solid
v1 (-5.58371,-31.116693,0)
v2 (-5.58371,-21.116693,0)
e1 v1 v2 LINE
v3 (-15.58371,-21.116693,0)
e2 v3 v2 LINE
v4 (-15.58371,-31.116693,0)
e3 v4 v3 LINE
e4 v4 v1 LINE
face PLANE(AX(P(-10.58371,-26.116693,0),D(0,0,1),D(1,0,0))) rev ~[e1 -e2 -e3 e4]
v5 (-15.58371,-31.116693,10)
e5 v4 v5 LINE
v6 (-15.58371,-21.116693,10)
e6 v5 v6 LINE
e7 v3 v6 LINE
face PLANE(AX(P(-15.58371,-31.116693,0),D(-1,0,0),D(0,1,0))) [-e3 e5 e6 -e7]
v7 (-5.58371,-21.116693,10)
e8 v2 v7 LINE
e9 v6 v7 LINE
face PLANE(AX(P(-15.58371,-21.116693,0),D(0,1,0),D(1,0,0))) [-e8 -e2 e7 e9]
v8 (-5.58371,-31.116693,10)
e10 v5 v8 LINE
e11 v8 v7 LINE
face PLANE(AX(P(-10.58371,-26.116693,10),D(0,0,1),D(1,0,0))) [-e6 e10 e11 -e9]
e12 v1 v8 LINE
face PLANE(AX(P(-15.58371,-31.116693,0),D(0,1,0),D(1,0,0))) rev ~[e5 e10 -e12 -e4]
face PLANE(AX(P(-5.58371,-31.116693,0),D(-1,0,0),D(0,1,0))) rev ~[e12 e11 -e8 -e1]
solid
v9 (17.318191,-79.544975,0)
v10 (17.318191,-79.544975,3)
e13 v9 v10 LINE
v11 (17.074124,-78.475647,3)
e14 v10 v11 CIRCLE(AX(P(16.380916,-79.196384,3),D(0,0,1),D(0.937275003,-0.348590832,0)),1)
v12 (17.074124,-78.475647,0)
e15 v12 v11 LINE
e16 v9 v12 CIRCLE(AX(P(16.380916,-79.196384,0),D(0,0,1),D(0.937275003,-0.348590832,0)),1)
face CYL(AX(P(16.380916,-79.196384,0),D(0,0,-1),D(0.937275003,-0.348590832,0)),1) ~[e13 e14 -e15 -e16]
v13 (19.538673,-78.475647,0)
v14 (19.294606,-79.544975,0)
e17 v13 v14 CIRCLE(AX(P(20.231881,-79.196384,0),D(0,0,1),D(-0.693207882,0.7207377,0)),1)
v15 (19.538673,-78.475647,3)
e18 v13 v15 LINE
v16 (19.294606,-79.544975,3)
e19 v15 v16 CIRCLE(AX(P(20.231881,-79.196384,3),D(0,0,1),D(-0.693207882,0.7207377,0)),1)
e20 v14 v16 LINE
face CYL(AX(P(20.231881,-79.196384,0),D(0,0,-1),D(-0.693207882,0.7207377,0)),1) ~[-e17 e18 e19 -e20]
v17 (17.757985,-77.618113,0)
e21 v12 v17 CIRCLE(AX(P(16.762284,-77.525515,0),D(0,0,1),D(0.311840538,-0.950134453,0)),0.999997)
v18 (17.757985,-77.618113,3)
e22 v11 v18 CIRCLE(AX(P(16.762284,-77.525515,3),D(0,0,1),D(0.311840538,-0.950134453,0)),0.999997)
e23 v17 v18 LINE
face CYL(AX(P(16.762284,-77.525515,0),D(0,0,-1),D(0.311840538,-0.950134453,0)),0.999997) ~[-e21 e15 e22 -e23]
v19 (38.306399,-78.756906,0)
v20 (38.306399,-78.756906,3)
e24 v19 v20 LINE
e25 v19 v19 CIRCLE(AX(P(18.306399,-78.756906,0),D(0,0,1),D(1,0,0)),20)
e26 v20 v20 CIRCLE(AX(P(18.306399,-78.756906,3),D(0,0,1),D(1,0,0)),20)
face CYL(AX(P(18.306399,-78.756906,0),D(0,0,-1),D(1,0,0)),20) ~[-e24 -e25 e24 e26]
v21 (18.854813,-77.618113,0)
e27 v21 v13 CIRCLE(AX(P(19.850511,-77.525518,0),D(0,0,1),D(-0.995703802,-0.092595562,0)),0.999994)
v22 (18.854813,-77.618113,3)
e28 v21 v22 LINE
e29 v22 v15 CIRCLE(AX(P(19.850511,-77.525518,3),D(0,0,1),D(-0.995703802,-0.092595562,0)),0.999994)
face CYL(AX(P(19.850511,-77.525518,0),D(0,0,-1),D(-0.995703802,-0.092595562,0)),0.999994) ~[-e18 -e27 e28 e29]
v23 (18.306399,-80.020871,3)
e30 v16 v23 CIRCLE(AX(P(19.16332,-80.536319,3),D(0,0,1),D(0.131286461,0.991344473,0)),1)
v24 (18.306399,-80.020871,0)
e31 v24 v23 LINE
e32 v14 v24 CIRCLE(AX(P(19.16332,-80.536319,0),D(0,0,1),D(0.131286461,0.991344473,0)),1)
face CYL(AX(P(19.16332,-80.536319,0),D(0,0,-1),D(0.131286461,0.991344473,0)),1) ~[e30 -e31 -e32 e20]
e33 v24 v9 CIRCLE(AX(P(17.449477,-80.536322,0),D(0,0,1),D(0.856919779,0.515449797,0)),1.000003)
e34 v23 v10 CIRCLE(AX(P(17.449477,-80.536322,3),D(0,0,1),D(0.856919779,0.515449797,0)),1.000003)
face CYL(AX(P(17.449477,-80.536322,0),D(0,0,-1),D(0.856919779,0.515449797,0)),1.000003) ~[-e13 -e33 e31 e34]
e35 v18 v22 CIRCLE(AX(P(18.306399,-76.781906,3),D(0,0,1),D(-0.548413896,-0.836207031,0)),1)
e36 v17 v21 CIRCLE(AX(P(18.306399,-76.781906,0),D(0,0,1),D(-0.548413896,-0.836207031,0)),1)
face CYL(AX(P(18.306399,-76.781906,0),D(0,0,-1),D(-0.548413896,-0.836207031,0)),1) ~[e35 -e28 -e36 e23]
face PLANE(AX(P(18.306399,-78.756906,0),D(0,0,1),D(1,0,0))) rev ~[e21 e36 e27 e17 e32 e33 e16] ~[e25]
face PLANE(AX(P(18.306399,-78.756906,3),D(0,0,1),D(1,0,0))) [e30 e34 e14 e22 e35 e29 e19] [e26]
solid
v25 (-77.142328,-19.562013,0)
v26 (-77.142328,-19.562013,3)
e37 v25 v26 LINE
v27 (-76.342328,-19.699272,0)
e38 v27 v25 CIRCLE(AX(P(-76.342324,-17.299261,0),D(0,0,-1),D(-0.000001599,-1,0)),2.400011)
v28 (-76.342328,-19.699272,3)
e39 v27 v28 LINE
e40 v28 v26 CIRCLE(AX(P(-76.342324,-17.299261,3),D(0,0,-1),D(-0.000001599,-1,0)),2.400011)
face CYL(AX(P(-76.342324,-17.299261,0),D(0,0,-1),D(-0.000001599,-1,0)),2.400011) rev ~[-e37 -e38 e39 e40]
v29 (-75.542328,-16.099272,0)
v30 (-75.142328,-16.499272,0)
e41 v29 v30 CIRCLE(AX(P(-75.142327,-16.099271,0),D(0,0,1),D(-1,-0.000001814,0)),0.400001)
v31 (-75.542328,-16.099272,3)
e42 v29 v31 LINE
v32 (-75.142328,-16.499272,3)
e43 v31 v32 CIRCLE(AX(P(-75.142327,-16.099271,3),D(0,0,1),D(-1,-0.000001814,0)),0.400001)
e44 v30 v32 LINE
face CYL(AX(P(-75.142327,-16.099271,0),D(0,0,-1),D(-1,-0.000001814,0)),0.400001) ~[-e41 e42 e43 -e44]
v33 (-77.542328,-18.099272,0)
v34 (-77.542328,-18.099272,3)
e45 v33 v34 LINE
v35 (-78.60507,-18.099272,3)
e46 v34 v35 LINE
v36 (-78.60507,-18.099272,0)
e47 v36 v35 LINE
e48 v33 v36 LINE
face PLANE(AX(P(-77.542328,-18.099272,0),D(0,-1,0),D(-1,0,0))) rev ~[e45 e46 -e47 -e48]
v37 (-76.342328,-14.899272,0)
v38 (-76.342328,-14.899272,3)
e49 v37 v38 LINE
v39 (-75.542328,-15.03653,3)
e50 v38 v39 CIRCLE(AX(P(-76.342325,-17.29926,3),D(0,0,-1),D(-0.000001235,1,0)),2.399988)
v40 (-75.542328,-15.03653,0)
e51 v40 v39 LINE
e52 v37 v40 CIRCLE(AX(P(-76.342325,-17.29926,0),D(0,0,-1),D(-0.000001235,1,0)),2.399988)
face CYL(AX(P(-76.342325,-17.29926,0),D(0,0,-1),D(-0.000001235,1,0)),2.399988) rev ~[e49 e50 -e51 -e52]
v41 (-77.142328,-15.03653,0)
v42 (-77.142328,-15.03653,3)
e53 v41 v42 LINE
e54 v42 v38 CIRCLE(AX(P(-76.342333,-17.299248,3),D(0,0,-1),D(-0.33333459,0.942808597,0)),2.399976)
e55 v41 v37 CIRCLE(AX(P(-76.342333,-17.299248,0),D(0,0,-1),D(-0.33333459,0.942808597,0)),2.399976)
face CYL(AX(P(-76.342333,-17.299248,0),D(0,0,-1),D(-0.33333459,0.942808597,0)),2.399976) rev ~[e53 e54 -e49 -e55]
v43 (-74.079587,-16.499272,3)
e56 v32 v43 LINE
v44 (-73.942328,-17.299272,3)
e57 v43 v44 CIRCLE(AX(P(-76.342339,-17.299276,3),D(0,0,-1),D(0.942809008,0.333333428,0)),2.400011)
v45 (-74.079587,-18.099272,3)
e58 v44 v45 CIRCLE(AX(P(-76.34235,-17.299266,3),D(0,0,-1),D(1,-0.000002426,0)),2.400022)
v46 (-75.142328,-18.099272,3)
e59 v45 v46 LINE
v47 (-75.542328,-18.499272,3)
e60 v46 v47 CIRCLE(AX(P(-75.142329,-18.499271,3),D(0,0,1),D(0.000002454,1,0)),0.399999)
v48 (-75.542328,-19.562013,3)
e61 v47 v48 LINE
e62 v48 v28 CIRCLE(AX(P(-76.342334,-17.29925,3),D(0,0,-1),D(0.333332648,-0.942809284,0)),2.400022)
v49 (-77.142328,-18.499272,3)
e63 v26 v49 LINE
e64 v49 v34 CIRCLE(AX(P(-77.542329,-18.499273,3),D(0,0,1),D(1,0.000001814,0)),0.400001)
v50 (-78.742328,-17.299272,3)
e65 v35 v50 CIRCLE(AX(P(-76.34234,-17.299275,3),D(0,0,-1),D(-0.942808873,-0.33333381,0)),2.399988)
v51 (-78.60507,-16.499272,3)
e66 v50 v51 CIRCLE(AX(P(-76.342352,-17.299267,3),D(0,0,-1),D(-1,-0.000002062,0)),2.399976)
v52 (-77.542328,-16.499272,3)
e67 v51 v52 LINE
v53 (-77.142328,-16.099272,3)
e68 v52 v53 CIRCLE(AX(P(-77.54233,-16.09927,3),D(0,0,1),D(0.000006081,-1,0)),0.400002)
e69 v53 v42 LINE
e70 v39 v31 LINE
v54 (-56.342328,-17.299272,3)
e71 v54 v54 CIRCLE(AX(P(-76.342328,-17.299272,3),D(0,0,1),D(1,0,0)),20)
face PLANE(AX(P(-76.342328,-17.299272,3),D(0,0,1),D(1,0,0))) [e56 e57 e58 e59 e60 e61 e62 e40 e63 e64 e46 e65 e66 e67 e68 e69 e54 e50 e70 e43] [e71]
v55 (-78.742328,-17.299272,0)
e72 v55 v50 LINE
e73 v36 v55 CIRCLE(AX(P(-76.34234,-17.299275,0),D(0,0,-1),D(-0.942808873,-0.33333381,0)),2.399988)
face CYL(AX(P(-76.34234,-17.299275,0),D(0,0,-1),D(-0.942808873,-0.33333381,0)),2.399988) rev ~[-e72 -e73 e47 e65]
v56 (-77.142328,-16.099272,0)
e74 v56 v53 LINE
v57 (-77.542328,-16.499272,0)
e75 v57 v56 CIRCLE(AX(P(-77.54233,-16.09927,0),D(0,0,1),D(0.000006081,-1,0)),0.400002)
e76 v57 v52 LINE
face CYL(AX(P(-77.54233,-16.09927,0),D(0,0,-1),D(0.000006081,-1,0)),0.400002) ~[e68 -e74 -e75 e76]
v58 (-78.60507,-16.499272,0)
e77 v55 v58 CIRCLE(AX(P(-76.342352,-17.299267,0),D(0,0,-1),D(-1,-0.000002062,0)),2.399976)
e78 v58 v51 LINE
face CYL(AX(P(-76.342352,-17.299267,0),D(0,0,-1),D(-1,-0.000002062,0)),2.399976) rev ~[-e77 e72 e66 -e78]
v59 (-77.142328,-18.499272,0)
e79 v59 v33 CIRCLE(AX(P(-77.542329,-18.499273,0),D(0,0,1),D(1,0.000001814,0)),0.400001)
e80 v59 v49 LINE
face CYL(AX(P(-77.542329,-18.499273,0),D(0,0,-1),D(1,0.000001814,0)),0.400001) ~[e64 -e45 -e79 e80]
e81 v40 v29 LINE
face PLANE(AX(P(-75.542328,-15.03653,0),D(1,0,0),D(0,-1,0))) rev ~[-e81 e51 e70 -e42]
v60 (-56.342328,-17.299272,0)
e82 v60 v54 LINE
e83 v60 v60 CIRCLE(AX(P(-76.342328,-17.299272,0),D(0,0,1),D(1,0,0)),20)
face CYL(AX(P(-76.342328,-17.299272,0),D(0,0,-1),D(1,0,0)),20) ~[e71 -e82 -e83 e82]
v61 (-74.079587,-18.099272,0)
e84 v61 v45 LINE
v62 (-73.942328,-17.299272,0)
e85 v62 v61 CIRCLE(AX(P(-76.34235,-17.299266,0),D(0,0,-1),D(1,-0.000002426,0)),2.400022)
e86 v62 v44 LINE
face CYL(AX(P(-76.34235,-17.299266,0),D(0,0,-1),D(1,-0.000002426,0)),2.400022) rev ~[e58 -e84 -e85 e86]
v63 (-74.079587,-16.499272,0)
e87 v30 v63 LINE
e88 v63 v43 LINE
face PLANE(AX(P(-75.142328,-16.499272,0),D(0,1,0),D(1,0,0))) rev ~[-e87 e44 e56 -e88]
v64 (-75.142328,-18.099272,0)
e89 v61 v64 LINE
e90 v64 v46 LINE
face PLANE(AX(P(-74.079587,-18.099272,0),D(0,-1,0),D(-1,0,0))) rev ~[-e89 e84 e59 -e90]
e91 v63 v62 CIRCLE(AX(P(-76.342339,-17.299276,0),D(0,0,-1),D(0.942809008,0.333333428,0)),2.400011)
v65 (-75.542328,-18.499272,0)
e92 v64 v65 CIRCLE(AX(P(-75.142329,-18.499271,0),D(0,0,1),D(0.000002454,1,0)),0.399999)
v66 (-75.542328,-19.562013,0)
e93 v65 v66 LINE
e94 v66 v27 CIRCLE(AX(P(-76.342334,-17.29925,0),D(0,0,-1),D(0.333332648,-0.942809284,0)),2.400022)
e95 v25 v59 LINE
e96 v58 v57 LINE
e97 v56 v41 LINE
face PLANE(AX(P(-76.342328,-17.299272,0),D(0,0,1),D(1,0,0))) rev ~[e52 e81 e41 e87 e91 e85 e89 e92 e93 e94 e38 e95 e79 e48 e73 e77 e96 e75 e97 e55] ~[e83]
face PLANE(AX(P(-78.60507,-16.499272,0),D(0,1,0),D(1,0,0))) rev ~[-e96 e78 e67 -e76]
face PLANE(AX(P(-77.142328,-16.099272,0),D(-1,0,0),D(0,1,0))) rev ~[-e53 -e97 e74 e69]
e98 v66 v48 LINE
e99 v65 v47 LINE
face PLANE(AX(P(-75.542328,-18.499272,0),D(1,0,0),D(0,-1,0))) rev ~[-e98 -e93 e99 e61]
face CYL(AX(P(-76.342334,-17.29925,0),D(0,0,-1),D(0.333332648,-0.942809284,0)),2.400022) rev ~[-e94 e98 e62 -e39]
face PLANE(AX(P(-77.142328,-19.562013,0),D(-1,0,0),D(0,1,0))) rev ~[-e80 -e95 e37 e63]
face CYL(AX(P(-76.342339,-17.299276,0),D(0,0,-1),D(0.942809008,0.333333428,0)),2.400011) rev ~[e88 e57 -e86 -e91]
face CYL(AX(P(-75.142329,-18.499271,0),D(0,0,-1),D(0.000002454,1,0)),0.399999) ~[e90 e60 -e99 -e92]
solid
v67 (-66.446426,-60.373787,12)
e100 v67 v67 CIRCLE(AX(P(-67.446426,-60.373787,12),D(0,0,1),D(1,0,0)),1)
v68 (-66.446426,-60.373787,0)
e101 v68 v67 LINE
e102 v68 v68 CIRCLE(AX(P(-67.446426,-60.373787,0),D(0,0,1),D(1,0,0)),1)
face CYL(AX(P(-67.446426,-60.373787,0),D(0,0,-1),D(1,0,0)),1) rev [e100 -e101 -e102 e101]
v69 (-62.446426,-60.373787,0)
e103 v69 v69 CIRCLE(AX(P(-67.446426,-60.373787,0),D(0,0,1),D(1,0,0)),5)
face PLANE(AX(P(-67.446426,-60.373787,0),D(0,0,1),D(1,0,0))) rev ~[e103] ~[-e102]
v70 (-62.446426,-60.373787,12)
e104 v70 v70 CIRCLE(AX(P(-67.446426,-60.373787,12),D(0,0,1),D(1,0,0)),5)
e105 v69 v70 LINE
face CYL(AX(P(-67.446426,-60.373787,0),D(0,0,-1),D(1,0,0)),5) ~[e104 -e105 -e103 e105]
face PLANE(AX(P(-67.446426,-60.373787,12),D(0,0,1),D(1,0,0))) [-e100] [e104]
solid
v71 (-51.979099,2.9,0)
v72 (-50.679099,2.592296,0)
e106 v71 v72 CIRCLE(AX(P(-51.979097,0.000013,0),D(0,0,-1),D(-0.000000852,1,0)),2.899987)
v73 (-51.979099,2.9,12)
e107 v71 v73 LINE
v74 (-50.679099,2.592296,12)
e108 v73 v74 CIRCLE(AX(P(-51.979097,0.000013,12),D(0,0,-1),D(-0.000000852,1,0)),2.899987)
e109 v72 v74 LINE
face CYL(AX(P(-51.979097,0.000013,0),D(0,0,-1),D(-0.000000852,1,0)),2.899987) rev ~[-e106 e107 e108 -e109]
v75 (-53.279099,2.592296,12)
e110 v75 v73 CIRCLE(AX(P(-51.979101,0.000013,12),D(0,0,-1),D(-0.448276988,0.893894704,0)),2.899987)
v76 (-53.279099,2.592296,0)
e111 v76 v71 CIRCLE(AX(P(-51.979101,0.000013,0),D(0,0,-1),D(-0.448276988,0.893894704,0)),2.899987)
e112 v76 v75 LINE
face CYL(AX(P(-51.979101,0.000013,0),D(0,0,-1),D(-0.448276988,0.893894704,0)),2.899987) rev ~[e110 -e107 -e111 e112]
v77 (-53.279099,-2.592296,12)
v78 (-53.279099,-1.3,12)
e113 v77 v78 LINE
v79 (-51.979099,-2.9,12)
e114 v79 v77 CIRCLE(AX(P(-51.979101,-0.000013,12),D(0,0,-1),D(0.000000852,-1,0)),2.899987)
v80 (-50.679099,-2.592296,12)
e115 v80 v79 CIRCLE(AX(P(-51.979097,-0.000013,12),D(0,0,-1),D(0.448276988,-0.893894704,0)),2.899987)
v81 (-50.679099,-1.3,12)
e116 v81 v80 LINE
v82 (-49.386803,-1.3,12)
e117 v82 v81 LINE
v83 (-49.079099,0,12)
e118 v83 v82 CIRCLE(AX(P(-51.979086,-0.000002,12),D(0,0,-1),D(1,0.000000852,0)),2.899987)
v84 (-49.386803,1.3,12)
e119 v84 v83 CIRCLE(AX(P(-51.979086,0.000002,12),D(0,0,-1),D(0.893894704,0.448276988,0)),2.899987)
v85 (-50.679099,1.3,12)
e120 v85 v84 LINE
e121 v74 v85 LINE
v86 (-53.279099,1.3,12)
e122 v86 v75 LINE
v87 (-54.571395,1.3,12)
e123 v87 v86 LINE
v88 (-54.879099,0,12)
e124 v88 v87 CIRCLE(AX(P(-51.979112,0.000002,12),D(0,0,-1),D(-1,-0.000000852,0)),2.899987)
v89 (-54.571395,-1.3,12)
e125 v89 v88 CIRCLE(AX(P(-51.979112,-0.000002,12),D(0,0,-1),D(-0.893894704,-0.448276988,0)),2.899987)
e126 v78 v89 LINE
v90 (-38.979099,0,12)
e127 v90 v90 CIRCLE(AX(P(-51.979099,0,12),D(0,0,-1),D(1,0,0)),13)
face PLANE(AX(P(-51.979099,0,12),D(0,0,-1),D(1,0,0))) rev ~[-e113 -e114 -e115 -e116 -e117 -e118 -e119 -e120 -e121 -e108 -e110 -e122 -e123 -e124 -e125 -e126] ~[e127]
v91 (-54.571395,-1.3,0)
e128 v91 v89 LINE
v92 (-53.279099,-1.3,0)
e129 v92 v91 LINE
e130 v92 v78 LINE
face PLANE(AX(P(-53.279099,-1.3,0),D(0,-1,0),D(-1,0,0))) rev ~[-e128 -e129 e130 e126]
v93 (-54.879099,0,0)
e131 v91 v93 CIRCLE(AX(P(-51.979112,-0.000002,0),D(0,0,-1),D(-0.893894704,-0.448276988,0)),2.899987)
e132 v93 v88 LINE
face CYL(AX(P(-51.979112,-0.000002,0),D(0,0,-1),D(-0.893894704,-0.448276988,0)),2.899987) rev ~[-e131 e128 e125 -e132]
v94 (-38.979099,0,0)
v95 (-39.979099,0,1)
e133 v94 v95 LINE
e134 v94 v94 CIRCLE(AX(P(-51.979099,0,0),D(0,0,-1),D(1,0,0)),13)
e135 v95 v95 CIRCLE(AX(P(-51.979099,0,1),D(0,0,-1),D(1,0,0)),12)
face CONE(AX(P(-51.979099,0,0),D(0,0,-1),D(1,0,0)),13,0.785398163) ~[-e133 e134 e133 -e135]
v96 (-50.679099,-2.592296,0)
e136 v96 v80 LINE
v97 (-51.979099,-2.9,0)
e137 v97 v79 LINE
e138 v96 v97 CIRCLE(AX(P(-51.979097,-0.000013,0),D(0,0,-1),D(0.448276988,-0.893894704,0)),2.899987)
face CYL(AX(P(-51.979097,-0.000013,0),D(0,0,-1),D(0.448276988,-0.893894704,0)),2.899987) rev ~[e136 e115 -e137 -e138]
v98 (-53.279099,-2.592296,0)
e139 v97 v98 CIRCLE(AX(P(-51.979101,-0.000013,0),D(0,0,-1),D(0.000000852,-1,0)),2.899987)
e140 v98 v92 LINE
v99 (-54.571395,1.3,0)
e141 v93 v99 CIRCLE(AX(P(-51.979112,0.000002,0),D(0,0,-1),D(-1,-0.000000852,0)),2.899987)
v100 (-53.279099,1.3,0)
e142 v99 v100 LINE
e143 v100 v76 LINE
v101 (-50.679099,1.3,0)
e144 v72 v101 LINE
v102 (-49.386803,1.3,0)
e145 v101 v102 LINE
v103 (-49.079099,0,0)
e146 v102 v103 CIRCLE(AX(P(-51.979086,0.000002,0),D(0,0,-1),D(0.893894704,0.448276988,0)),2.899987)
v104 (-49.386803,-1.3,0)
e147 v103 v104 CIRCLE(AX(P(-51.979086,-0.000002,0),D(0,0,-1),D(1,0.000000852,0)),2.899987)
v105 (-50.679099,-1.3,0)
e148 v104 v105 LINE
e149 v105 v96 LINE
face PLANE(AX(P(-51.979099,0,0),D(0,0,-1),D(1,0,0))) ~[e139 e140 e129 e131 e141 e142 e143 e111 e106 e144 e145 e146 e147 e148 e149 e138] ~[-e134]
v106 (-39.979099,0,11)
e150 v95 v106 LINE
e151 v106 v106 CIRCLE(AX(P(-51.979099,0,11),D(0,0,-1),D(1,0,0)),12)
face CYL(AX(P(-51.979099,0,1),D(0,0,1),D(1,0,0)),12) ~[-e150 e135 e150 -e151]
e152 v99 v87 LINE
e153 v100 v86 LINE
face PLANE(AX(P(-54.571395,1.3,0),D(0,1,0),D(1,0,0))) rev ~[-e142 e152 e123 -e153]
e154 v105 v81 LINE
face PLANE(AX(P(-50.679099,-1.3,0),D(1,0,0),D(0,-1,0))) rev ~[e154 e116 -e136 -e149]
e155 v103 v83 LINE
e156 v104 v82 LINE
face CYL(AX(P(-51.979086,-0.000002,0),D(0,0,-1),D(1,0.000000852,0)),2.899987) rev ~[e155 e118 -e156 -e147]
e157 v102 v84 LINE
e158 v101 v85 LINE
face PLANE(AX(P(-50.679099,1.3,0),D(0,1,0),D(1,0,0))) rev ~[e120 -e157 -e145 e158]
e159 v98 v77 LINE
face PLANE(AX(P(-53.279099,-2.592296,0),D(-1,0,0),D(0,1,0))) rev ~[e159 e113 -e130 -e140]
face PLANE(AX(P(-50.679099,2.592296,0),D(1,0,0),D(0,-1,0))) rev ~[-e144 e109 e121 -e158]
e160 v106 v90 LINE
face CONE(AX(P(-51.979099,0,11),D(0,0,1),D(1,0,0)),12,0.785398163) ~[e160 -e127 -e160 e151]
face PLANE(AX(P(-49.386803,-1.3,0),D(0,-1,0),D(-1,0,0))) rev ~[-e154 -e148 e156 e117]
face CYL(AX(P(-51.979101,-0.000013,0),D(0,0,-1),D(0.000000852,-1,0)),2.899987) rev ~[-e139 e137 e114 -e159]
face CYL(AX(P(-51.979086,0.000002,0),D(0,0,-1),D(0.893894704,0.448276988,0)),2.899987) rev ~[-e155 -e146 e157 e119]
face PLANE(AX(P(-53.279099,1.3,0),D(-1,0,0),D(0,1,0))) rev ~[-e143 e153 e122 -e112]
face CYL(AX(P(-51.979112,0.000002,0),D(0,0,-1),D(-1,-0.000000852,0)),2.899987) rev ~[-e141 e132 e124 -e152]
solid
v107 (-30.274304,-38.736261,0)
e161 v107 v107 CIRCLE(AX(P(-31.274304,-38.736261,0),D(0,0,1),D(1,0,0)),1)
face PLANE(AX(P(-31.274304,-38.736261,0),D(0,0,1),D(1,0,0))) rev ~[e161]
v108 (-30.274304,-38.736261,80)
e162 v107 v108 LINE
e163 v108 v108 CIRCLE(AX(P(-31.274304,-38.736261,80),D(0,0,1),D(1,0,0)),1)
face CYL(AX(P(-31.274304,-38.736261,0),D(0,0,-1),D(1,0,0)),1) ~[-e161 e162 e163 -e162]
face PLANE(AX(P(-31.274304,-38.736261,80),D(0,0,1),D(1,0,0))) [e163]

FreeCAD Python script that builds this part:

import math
import FreeCAD as App
import Part
import Sketcher


def faces_at(feature, points):
    """Names of the faces that lie closest to the given points."""
    faces = feature.Shape.Faces
    near = lambda p: min(range(len(faces)), key=lambda i: faces[i].distToShape(Part.Vertex(*p))[0])
    return sorted({f"Face{near(p) + 1}" for p in points})

doc = App.newDocument("Part")
params = doc.addObject("Spreadsheet::Sheet", "Params")
for row, (alias, value) in enumerate([
    ("sketch1_diameter", "40 mm"),
    ("sketch1_radius", "1 mm"),
    ("pad1_length", "3 mm"),
    ("sketch2_diameter", "2 mm"),
    ("pad2_length", "80 mm"),
    ("pad3_length", "308 mm"),
    ("thickness_wall", "2.5 mm"),
    ("sketch4_diameter", "10 mm"),
    ("sketch4_diameter2", "2 mm"),
    ("pad4_length", "12 mm"),
    ("sketch5_width", "12 mm"),
    ("sketch5_height", "10 mm"),
    ("revolution_angle", "360 deg"),
    ("sketch7_diameter", "40 mm"),
    ("sketch7_radius", "0.400001 mm"),
    ("pad5_length", "3 mm"),
    ("sketch8_width", "10 mm"),
    ("pad6_length", "10 mm"),
], start=1):
    params.set(f"A{row}", alias)
    params.set(f"B{row}", "=" + value)
    params.setAlias(f"B{row}", alias)

body = doc.addObject("PartDesign::Body", "Body")

# Sketch on XY plane
sketch1 = body.newObject("Sketcher::SketchObject", "Sketch")
sketch1.AttachmentSupport = (doc.getObject("XY_Plane"), [""])
sketch1.MapMode = "FlatFace"
sketch1.addGeometry([
    Part.Circle(App.Vector(18.306399, -78.756906, 0), App.Vector(0, 0, 1), 20),  # 0
    Part.ArcOfCircle(Part.Circle(App.Vector(16.380916, -79.196384, 0), App.Vector(0, 0, 1), 1), math.radians(-20.401148), math.radians(46.11542)),  # 1
    Part.ArcOfCircle(Part.Circle(App.Vector(16.762284, -77.525515, 0), App.Vector(0, 0, 1), 0.999997), math.radians(-71.829815), math.radians(-5.313079)),  # 2
    Part.ArcOfCircle(Part.Circle(App.Vector(18.306399, -76.781906, 0), App.Vector(0, 0, 1), 1), math.radians(-123.258267), math.radians(-56.741733)),  # 3
    Part.ArcOfCircle(Part.Circle(App.Vector(19.850511, -77.525518, 0), App.Vector(0, 0, 1), 0.999994), math.radians(-174.687054), math.radians(-108.170133)),  # 4
    Part.ArcOfCircle(Part.Circle(App.Vector(20.231881, -79.196384, 0), App.Vector(0, 0, 1), 1), math.radians(133.88458), math.radians(200.401148)),  # 5
    Part.ArcOfCircle(Part.Circle(App.Vector(19.16332, -80.536319, 0), App.Vector(0, 0, 1), 1), math.radians(82.456062), math.radians(148.972565)),  # 6
    Part.ArcOfCircle(Part.Circle(App.Vector(17.449477, -80.536322, 0), App.Vector(0, 0, 1), 1.000003), math.radians(31.027525), math.radians(97.543894)),  # 7
], False)
sketch1.addConstraint([
    Sketcher.Constraint("Coincident", 1, 2, 2, 1),
    Sketcher.Constraint("Coincident", 2, 2, 3, 1),
    Sketcher.Constraint("Coincident", 3, 2, 4, 1),
    Sketcher.Constraint("Coincident", 4, 2, 5, 1),
    Sketcher.Constraint("Coincident", 5, 2, 6, 1),
    Sketcher.Constraint("Coincident", 6, 2, 7, 1),
    Sketcher.Constraint("Coincident", 7, 2, 1, 1),
    Sketcher.Constraint("Equal", 1, 3),
    Sketcher.Constraint("Equal", 3, 5),
    Sketcher.Constraint("Equal", 5, 6),
    Sketcher.Constraint("Horizontal", 1, 3, 5, 3),
    Sketcher.Constraint("Horizontal", 2, 2, 3, 2),
    Sketcher.Constraint("Horizontal", 1, 2, 4, 2),
    Sketcher.Constraint("Horizontal", 5, 2, 7, 2),
    Sketcher.Constraint("Vertical", 0, 3, 3, 3),
    Sketcher.Constraint("Vertical", 3, 3, 6, 2),
    Sketcher.Constraint("Diameter", 0, 40.0),
    Sketcher.Constraint("Radius", 1, 1.0),
    Sketcher.Constraint("Radius", 2, 0.999997),
    Sketcher.Constraint("Radius", 4, 0.999994),
    Sketcher.Constraint("Radius", 7, 1.000003),
    Sketcher.Constraint("DistanceY", 0, 3, 3, 3, 1.975),
    Sketcher.Constraint("DistanceX", -1, 1, 0, 3, 18.306399),
    Sketcher.Constraint("DistanceY", 6, 3, 4, 3, 3.010801),
    Sketcher.Constraint("DistanceX", 2, 3, 2, 2, 0.995701),
    Sketcher.Constraint("DistanceX", -1, 1, 4, 3, 19.850511),
    Sketcher.Constraint("DistanceX", -1, 1, 5, 3, 20.231881),
    Sketcher.Constraint("DistanceX", -1, 1, 6, 3, 19.16332),
    Sketcher.Constraint("DistanceY", 6, 3, -1, 1, 80.536319),
    Sketcher.Constraint("DistanceX", -1, 1, 7, 2, 17.318191),
    Sketcher.Constraint("DistanceY", 1, 3, 0, 3, 0.439478),
])
sketch1.setExpression("Constraints[16]", "Params.sketch1_diameter")
sketch1.setExpression("Constraints[17]", "Params.sketch1_radius")
pad1 = body.newObject("PartDesign::Pad", "Pad")
pad1.Profile = sketch1
pad1.setExpression("Length", "Params.pad1_length")
body2 = doc.addObject("PartDesign::Body", "Body001")

# Sketch on XY plane
sketch2 = body2.newObject("Sketcher::SketchObject", "Sketch001")
sketch2.AttachmentSupport = (doc.getObject("XY_Plane001"), [""])
sketch2.MapMode = "FlatFace"
sketch2.addGeometry(Part.Circle(App.Vector(-31.274304, -38.736261, 0), App.Vector(0, 0, 1), 1), False)
sketch2.addConstraint([
    Sketcher.Constraint("Diameter", 0, 2.0),
    Sketcher.Constraint("DistanceY", 0, 3, -1, 1, 38.736261),
    Sketcher.Constraint("DistanceX", 0, 3, -1, 1, 31.274304),
])
sketch2.setExpression("Constraints[0]", "Params.sketch2_diameter")
pad2 = body2.newObject("PartDesign::Pad", "Pad001")
pad2.Profile = sketch2
pad2.setExpression("Length", "Params.pad2_length")
body3 = doc.addObject("PartDesign::Body", "Body002")

# Sketch on XY plane
sketch3 = body3.newObject("Sketcher::SketchObject", "Sketch002")
sketch3.AttachmentSupport = (doc.getObject("XY_Plane002"), [""])
sketch3.MapMode = "FlatFace"
sketch3.addGeometry([
    Part.LineSegment(App.Vector(114.501424, 146.946729, 0), App.Vector(114.501424, -144.927591, 0)),
    Part.LineSegment(App.Vector(114.501424, -144.927591, 0), App.Vector(301.108478, -144.927591, 0)),
    Part.LineSegment(App.Vector(301.108478, -144.927591, 0), App.Vector(301.108478, 146.946729, 0)),
    Part.LineSegment(App.Vector(301.108478, 146.946729, 0), App.Vector(114.501424, 146.946729, 0)),
], False)
sketch3.addConstraint([
    Sketcher.Constraint("Coincident", 0, 2, 1, 1),
    Sketcher.Constraint("Coincident", 1, 2, 2, 1),
    Sketcher.Constraint("Coincident", 2, 2, 3, 1),
    Sketcher.Constraint("Coincident", 3, 2, 0, 1),
    Sketcher.Constraint("Vertical", 0),
    Sketcher.Constraint("Horizontal", 1),
    Sketcher.Constraint("Vertical", 2),
    Sketcher.Constraint("Horizontal", 3),
    Sketcher.Constraint("DistanceY", 0, 2, 0, 1, 291.874319),
    Sketcher.Constraint("DistanceX", 1, 1, 1, 2, 186.607055),
    Sketcher.Constraint("DistanceY", 0, 2, -1, 1, 144.927591),
    Sketcher.Constraint("DistanceX", -1, 1, 1, 2, 301.108478),
])
pad3 = body3.newObject("PartDesign::Pad", "Pad002")
pad3.Profile = sketch3
pad3.setExpression("Length", "Params.pad3_length")
doc.recompute()

thickness = body3.newObject("PartDesign::Thickness", "Thickness")
thickness.Base = (pad3, faces_at(pad3, [(207.805, 1.01, 308), (207.805, 1.01, 0)]))
thickness.setExpression("Value", "Params.thickness_wall")
thickness.Reversed = True
thickness.Join = "Arc"
body4 = doc.addObject("PartDesign::Body", "Body003")

# Sketch on XY plane
sketch4 = body4.newObject("Sketcher::SketchObject", "Sketch003")
sketch4.AttachmentSupport = (doc.getObject("XY_Plane003"), [""])
sketch4.MapMode = "FlatFace"
sketch4.addGeometry([
    Part.Circle(App.Vector(-67.446426, -60.373787, 0), App.Vector(0, 0, 1), 5),
    Part.Circle(App.Vector(-67.446426, -60.373787, 0), App.Vector(0, 0, 1), 1),
], False)
sketch4.addConstraint([
    Sketcher.Constraint("Coincident", 1, 3, 0, 3),
    Sketcher.Constraint("Diameter", 0, 10.0),
    Sketcher.Constraint("Diameter", 1, 2.0),
    Sketcher.Constraint("DistanceX", 0, 3, -1, 1, 67.446426),
    Sketcher.Constraint("DistanceY", 0, 3, -1, 1, 60.373787),
])
sketch4.setExpression("Constraints[1]", "Params.sketch4_diameter")
sketch4.setExpression("Constraints[2]", "Params.sketch4_diameter2")
pad4 = body4.newObject("PartDesign::Pad", "Pad003")
pad4.Profile = sketch4
pad4.setExpression("Length", "Params.pad4_length")
body5 = doc.addObject("PartDesign::Body", "Body004")

# Sketch on XZ plane
sketch5 = body5.newObject("Sketcher::SketchObject", "Sketch004")
sketch5.AttachmentSupport = (doc.getObject("XZ_Plane004"), [""])
sketch5.MapMode = "FlatFace"
sketch5.addGeometry([
    Part.LineSegment(App.Vector(-38.979099, 0, 0), App.Vector(-39.979099, 1, 0)),  # 0
    Part.LineSegment(App.Vector(-39.979099, 1, 0), App.Vector(-39.979099, 11, 0)),  # 1
    Part.LineSegment(App.Vector(-39.979099, 11, 0), App.Vector(-38.979099, 12, 0)),  # 2
    Part.LineSegment(App.Vector(-38.979099, 12, 0), App.Vector(-50.979099, 12, 0)),  # 3
    Part.LineSegment(App.Vector(-50.979099, 12, 0), App.Vector(-50.979099, 0, 0)),  # 4
    Part.LineSegment(App.Vector(-50.979099, 0, 0), App.Vector(-38.979099, 0, 0)),  # 5
], False)
sketch5.addGeometry(Part.LineSegment(App.Vector(-51.979099, 12, 0), App.Vector(-51.979099, 0, 0)), True)  # axis
sketch5.addConstraint([
    Sketcher.Constraint("Coincident", 0, 2, 1, 1),
    Sketcher.Constraint("Coincident", 1, 2, 2, 1),
    Sketcher.Constraint("Coincident", 2, 2, 3, 1),
    Sketcher.Constraint("Coincident", 3, 2, 4, 1),
    Sketcher.Constraint("Coincident", 4, 2, 5, 1),
    Sketcher.Constraint("Coincident", 5, 2, 0, 1),
    Sketcher.Constraint("Vertical", 1),
    Sketcher.Constraint("Horizontal", 3),
    Sketcher.Constraint("Vertical", 4),
    Sketcher.Constraint("Horizontal", 5),
    Sketcher.Constraint("Vertical", 6),
    Sketcher.Constraint("PointOnObject", 4, 2, -1),
    Sketcher.Constraint("PointOnObject", 6, 2, -1),
    Sketcher.Constraint("Perpendicular", 0, 2),
    Sketcher.Constraint("Horizontal", 3, 2, 6, 1),
    Sketcher.Constraint("Vertical", 2, 2, 5, 2),
    Sketcher.Constraint("Equal", 5, 4),
    Sketcher.Constraint("Equal", 0, 2),
    Sketcher.Constraint("DistanceX", 3, 2, 3, 1, 12.0),
    Sketcher.Constraint("DistanceY", 1, 1, 1, 2, 10.0),
    Sketcher.Constraint("DistanceX", 6, 1, 3, 2, 1.0),
    Sketcher.Constraint("DistanceX", 0, 2, -1, 1, 39.979099),
])
sketch5.setExpression("Constraints[18]", "Params.sketch5_width")
sketch5.setExpression("Constraints[19]", "Params.sketch5_height")
revolution = body5.newObject("PartDesign::Revolution", "Revolution")
revolution.Profile = sketch5
revolution.ReferenceAxis = (sketch5, ["Axis0"])
revolution.setExpression("Angle", "Params.revolution_angle")

# Sketch on XY plane
sketch6 = body5.newObject("Sketcher::SketchObject", "Sketch005")
sketch6.AttachmentSupport = (doc.getObject("XY_Plane004"), [""])
sketch6.MapMode = "FlatFace"
sketch6.addGeometry([
    Part.LineSegment(App.Vector(-50.679099, -1.3, 0), App.Vector(-50.679099, -2.592296, 0)),  # 0
    Part.ArcOfCircle(Part.Circle(App.Vector(-51.979097, -0.000013, 0), App.Vector(0, 0, 1), 2.899987), math.radians(-90.000049), math.radians(-63.366809)),  # 1
    Part.ArcOfCircle(Part.Circle(App.Vector(-51.979101, -0.000013, 0), App.Vector(0, 0, 1), 2.899987), math.radians(-116.633191), math.radians(-89.999951)),  # 2
    Part.LineSegment(App.Vector(-53.279099, -2.592296, 0), App.Vector(-53.279099, -1.3, 0)),  # 3
    Part.LineSegment(App.Vector(-53.279099, -1.3, 0), App.Vector(-54.571395, -1.3, 0)),  # 4
    Part.ArcOfCircle(Part.Circle(App.Vector(-51.979112, -0.000002, 0), App.Vector(0, 0, 1), 2.899987), math.radians(179.999951), math.radians(206.633191)),  # 5
    Part.ArcOfCircle(Part.Circle(App.Vector(-51.979112, 0.000002, 0), App.Vector(0, 0, 1), 2.899987), math.radians(153.366809), math.radians(180.000049)),  # 6
    Part.LineSegment(App.Vector(-54.571395, 1.3, 0), App.Vector(-53.279099, 1.3, 0)),  # 7
    Part.LineSegment(App.Vector(-53.279099, 1.3, 0), App.Vector(-53.279099, 2.592296, 0)),  # 8
    Part.ArcOfCircle(Part.Circle(App.Vector(-51.979101, 0.000013, 0), App.Vector(0, 0, 1), 2.899987), math.radians(89.999951), math.radians(116.633191)),  # 9
    Part.ArcOfCircle(Part.Circle(App.Vector(-51.979097, 0.000013, 0), App.Vector(0, 0, 1), 2.899987), math.radians(63.366809), math.radians(90.000049)),  # 10
    Part.LineSegment(App.Vector(-50.679099, 2.592296, 0), App.Vector(-50.679099, 1.3, 0)),  # 11
    Part.LineSegment(App.Vector(-50.679099, 1.3, 0), App.Vector(-49.386803, 1.3, 0)),  # 12
    Part.ArcOfCircle(Part.Circle(App.Vector(-51.979086, 0.000002, 0), App.Vector(0, 0, 1), 2.899987), math.radians(-0.000049), math.radians(26.633191)),  # 13
    Part.ArcOfCircle(Part.Circle(App.Vector(-51.979086, -0.000002, 0), App.Vector(0, 0, 1), 2.899987), math.radians(-26.633191), math.radians(0.000049)),  # 14
    Part.LineSegment(App.Vector(-49.386803, -1.3, 0), App.Vector(-50.679099, -1.3, 0)),  # 15
], False)
sketch6.addConstraint([
    Sketcher.Constraint("Coincident", 0, 2, 1, 2),
    Sketcher.Constraint("Tangent", 1, 1, 2, 2),
    Sketcher.Constraint("Coincident", 2, 1, 3, 1),
    Sketcher.Constraint("Coincident", 3, 2, 4, 1),
    Sketcher.Constraint("Coincident", 4, 2, 5, 2),
    Sketcher.Constraint("Tangent", 5, 1, 6, 2),
    Sketcher.Constraint("Coincident", 6, 1, 7, 1),
    Sketcher.Constraint("Coincident", 7, 2, 8, 1),
    Sketcher.Constraint("Coincident", 8, 2, 9, 2),
    Sketcher.Constraint("Tangent", 9, 1, 10, 2),
    Sketcher.Constraint("Coincident", 10, 1, 11, 1),
    Sketcher.Constraint("Coincident", 11, 2, 12, 1),
    Sketcher.Constraint("Coincident", 12, 2, 13, 2),
    Sketcher.Constraint("Tangent", 13, 1, 14, 2),
    Sketcher.Constraint("Coincident", 14, 1, 15, 1),
    Sketcher.Constraint("Coincident", 15, 2, 0, 1),
    Sketcher.Constraint("Vertical", 0),
    Sketcher.Constraint("Vertical", 3),
    Sketcher.Constraint("Horizontal", 4),
    Sketcher.Constraint("Horizontal", 7),
    Sketcher.Constraint("Vertical", 8),
    Sketcher.Constraint("Vertical", 11),
    Sketcher.Constraint("Horizontal", 12),
    Sketcher.Constraint("Horizontal", 15),
    Sketcher.Constraint("Equal", 1, 2),
    Sketcher.Constraint("Equal", 2, 5),
    Sketcher.Constraint("Equal", 5, 6),
    Sketcher.Constraint("Equal", 6, 9),
    Sketcher.Constraint("Equal", 9, 10),
    Sketcher.Constraint("Equal", 10, 13),
    Sketcher.Constraint("Equal", 13, 14),
    Sketcher.Constraint("Symmetric", 1, 3, 9, 3, -1),
    Sketcher.Constraint("Symmetric", 4, 2, 6, 1, -1),
    Sketcher.Constraint("Symmetric", 12, 2, 14, 1, -1),
    Sketcher.Constraint("PointOnObject", 5, 1, -1),
    Sketcher.Constraint("PointOnObject", 13, 1, -1),
    Sketcher.Constraint("Horizontal", 0, 2, 2, 1),
    Sketcher.Constraint("Horizontal", 8, 2, 10, 1),
    Sketcher.Constraint("Horizontal", 7, 2, 11, 2),
    Sketcher.Constraint("Vertical", 3, 2, 7, 2),
    Sketcher.Constraint("Vertical", 1, 1, 9, 1),
    Sketcher.Constraint("Equal", 7, 12),
    Sketcher.Constraint("Equal", 15, 0),
    Sketcher.Constraint("DistanceY", 1, 1, -1, 1, 2.9),
    Sketcher.Constraint("DistanceY", 3, 2, -1, 1, 1.3),
    Sketcher.Constraint("DistanceX", 1, 1, 0, 2, 1.3),
    Sketcher.Constraint("DistanceX", 2, 1, 1, 1, 1.3),
    Sketcher.Constraint("Radius", 1, 2.899987),
    Sketcher.Constraint("DistanceX", 2, 3, -1, 1, 51.979101),
])
pocket1 = body5.newObject("PartDesign::Pocket", "Pocket")
pocket1.Profile = sketch6
pocket1.Type = "ThroughAll"
pocket1.Reversed = True
body6 = doc.addObject("PartDesign::Body", "Body005")

# Sketch on XY plane
sketch7 = body6.newObject("Sketcher::SketchObject", "Sketch006")
sketch7.AttachmentSupport = (doc.getObject("XY_Plane005"), [""])
sketch7.MapMode = "FlatFace"
sketch7.addGeometry([
    Part.Circle(App.Vector(-76.342328, -17.299272, 0), App.Vector(0, 0, 1), 20),  # 0
    Part.ArcOfCircle(Part.Circle(App.Vector(-76.34234, -17.299275, 0), App.Vector(0, 0, 1), 2.399988), math.radians(179.999929), math.radians(199.47125)),  # 1
    Part.ArcOfCircle(Part.Circle(App.Vector(-76.342352, -17.299267, 0), App.Vector(0, 0, 1), 2.399976), math.radians(160.528703), math.radians(180.000118)),  # 2
    Part.LineSegment(App.Vector(-78.60507, -16.499272, 0), App.Vector(-77.542328, -16.499272, 0)),  # 3
    Part.ArcOfCircle(Part.Circle(App.Vector(-77.54233, -16.09927, 0), App.Vector(0, 0, 1), 0.400002), math.radians(-89.999652), math.radians(-0.000348)),  # 4
    Part.LineSegment(App.Vector(-77.142328, -16.099272, 0), App.Vector(-77.142328, -15.03653, 0)),  # 5
    Part.ArcOfCircle(Part.Circle(App.Vector(-76.342333, -17.299248, 0), App.Vector(0, 0, 1), 2.399976), math.radians(89.999882), math.radians(109.471297)),  # 6
    Part.ArcOfCircle(Part.Circle(App.Vector(-76.342325, -17.29926, 0), App.Vector(0, 0, 1), 2.399988), math.radians(70.52875), math.radians(90.000071)),  # 7
    Part.LineSegment(App.Vector(-75.542328, -15.03653, 0), App.Vector(-75.542328, -16.099272, 0)),  # 8
    Part.ArcOfCircle(Part.Circle(App.Vector(-75.142327, -16.099271, 0), App.Vector(0, 0, 1), 0.400001), math.radians(-179.999896), math.radians(-90.000104)),  # 9
    Part.LineSegment(App.Vector(-75.142328, -16.499272, 0), App.Vector(-74.079587, -16.499272, 0)),  # 10
    Part.ArcOfCircle(Part.Circle(App.Vector(-76.342339, -17.299276, 0), App.Vector(0, 0, 1), 2.400011), math.radians(0.000092), math.radians(19.471226)),  # 11
    Part.ArcOfCircle(Part.Circle(App.Vector(-76.34235, -17.299266, 0), App.Vector(0, 0, 1), 2.400022), math.radians(-19.471179), math.radians(-0.000139)),  # 12
    Part.LineSegment(App.Vector(-74.079587, -18.099272, 0), App.Vector(-75.142328, -18.099272, 0)),  # 13
    Part.ArcOfCircle(Part.Circle(App.Vector(-75.142329, -18.499271, 0), App.Vector(0, 0, 1), 0.399999), math.radians(89.999859), math.radians(180.000141)),  # 14
    Part.LineSegment(App.Vector(-75.542328, -18.499272, 0), App.Vector(-75.542328, -19.562013, 0)),  # 15
    Part.ArcOfCircle(Part.Circle(App.Vector(-76.342334, -17.29925, 0), App.Vector(0, 0, 1), 2.400022), math.radians(-89.999861), math.radians(-70.528821)),  # 16
    Part.ArcOfCircle(Part.Circle(App.Vector(-76.342324, -17.299261, 0), App.Vector(0, 0, 1), 2.400011), math.radians(-109.471226), math.radians(-90.000092)),  # 17
    Part.LineSegment(App.Vector(-77.142328, -19.562013, 0), App.Vector(-77.142328, -18.499272, 0)),  # 18
    Part.ArcOfCircle(Part.Circle(App.Vector(-77.542329, -18.499273, 0), App.Vector(0, 0, 1), 0.400001), math.radians(0.000104), math.radians(89.999896)),  # 19
    Part.LineSegment(App.Vector(-77.542328, -18.099272, 0), App.Vector(-78.60507, -18.099272, 0)),  # 20
], False)
sketch7.addConstraint([
    Sketcher.Constraint("Coincident", 1, 1, 2, 2),
    Sketcher.Constraint("Coincident", 2, 1, 3, 1),
    Sketcher.Constraint("Coincident", 3, 2, 4, 1),
    Sketcher.Constraint("Coincident", 4, 2, 5, 1),
    Sketcher.Constraint("Coincident", 5, 2, 6, 2),
    Sketcher.Constraint("Coincident", 6, 1, 7, 2),
    Sketcher.Constraint("Coincident", 7, 1, 8, 1),
    Sketcher.Constraint("Tangent", 8, 2, 9, 1),
    Sketcher.Constraint("Tangent", 9, 2, 10, 1),
    Sketcher.Constraint("Coincident", 10, 2, 11, 2),
    Sketcher.Constraint("Coincident", 11, 1, 12, 2),
    Sketcher.Constraint("Coincident", 12, 1, 13, 1),
    Sketcher.Constraint("Coincident", 13, 2, 14, 1),
    Sketcher.Constraint("Coincident", 14, 2, 15, 1),
    Sketcher.Constraint("Coincident", 15, 2, 16, 2),
    Sketcher.Constraint("Coincident", 16, 1, 17, 2),
    Sketcher.Constraint("Coincident", 17, 1, 18, 1),
    Sketcher.Constraint("Tangent", 18, 2, 19, 1),
    Sketcher.Constraint("Tangent", 19, 2, 20, 1),
    Sketcher.Constraint("Coincident", 20, 2, 1, 2),
    Sketcher.Constraint("Horizontal", 3),
    Sketcher.Constraint("Vertical", 5),
    Sketcher.Constraint("Vertical", 8),
    Sketcher.Constraint("Horizontal", 10),
    Sketcher.Constraint("Horizontal", 13),
    Sketcher.Constraint("Vertical", 15),
    Sketcher.Constraint("Vertical", 18),
    Sketcher.Constraint("Horizontal", 20),
    Sketcher.Constraint("Coincident", 11, 3, 1, 3),
    Sketcher.Constraint("Coincident", 12, 3, 2, 3),
    Sketcher.Constraint("Coincident", 16, 3, 6, 3),
    Sketcher.Constraint("Coincident", 17, 3, 7, 3),
    Sketcher.Constraint("Equal", 2, 6),
    Sketcher.Constraint("Equal", 1, 7),
    Sketcher.Constraint("Equal", 4, 9),
    Sketcher.Constraint("Equal", 9, 14),
    Sketcher.Constraint("Equal", 12, 16),
    Sketcher.Constraint("Equal", 14, 19),
    Sketcher.Constraint("Horizontal", 4, 3, 9, 3),
    Sketcher.Constraint("Horizontal", 14, 3, 19, 3),
    Sketcher.Constraint("Horizontal", 0, 3, 1, 1),
    Sketcher.Constraint("Horizontal", 9, 3, 4, 2),
    Sketcher.Constraint("Horizontal", 5, 2, 7, 1),
    Sketcher.Constraint("Horizontal", 1, 1, 11, 1),
    Sketcher.Constraint("Horizontal", 19, 3, 14, 2),
    Sketcher.Constraint("Horizontal", 15, 2, 17, 1),
    Sketcher.Constraint("Vertical", 9, 3, 14, 3),
    Sketcher.Constraint("Vertical", 19, 3, 3, 2),
    Sketcher.Constraint("Vertical", 0, 3, 6, 1),
    Sketcher.Constraint("Vertical", 10, 2, 12, 1),
    Sketcher.Constraint("Vertical", 9, 2, 13, 2),
    Sketcher.Constraint("Vertical", 6, 1, 16, 1),
    Sketcher.Constraint("Equal", 3, 10),
    Sketcher.Constraint("Equal", 20, 5),
    Sketcher.Constraint("Equal", 8, 15),
    Sketcher.Constraint("Diameter", 0, 40.0),
    Sketcher.Constraint("Radius", 9, 0.400001),
    Sketcher.Constraint("DistanceY", 19, 3, 2, 1, 2.000001),
    Sketcher.Constraint("DistanceX", 0, 3, 9, 3, 1.200001),
    Sketcher.Constraint("DistanceY", 0, 3, 9, 3, 1.200001),
    Sketcher.Constraint("DistanceX", 1, 1, 19, 3, 1.199999),
    Sketcher.Constraint("DistanceY", 4, 2, 6, 1, 1.2),
    Sketcher.Constraint("DistanceX", 9, 2, 11, 1, 1.2),
    Sketcher.Constraint("Radius", 11, 2.400011),
    Sketcher.Constraint("Radius", 2, 2.399976),
    Sketcher.Constraint("DistanceY", 0, 3, -1, 1, 17.299272),
    Sketcher.Constraint("DistanceX", 1, 3, -1, 1, 76.34234),
])
sketch7.setExpression("Constraints[55]", "Params.sketch7_diameter")
sketch7.setExpression("Constraints[56]", "Params.sketch7_radius")
pad5 = body6.newObject("PartDesign::Pad", "Pad004")
pad5.Profile = sketch7
pad5.setExpression("Length", "Params.pad5_length")
body7 = doc.addObject("PartDesign::Body", "Body006")

# Sketch on XY plane
sketch8 = body7.newObject("Sketcher::SketchObject", "Sketch007")
sketch8.AttachmentSupport = (doc.getObject("XY_Plane006"), [""])
sketch8.MapMode = "FlatFace"
sketch8.addGeometry([
    Part.LineSegment(App.Vector(-15.58371, -21.116693, 0), App.Vector(-15.58371, -31.116693, 0)),
    Part.LineSegment(App.Vector(-15.58371, -31.116693, 0), App.Vector(-5.58371, -31.116693, 0)),
    Part.LineSegment(App.Vector(-5.58371, -31.116693, 0), App.Vector(-5.58371, -21.116693, 0)),
    Part.LineSegment(App.Vector(-5.58371, -21.116693, 0), App.Vector(-15.58371, -21.116693, 0)),
], False)
sketch8.addConstraint([
    Sketcher.Constraint("Coincident", 0, 2, 1, 1),
    Sketcher.Constraint("Coincident", 1, 2, 2, 1),
    Sketcher.Constraint("Coincident", 2, 2, 3, 1),
    Sketcher.Constraint("Coincident", 3, 2, 0, 1),
    Sketcher.Constraint("Vertical", 0),
    Sketcher.Constraint("Horizontal", 1),
    Sketcher.Constraint("Vertical", 2),
    Sketcher.Constraint("Horizontal", 3),
    Sketcher.Constraint("Equal", 3, 0),
    Sketcher.Constraint("DistanceX", 1, 1, 1, 2, 10.0),
    Sketcher.Constraint("DistanceX", 0, 2, -1, 1, 15.58371),
    Sketcher.Constraint("DistanceY", 0, 2, -1, 1, 31.116693),
])
sketch8.setExpression("Constraints[9]", "Params.sketch8_width")
pad6 = body7.newObject("PartDesign::Pad", "Pad005")
pad6.Profile = sketch8
pad6.setExpression("Length", "Params.pad6_length")
body3.Visibility = False

doc.recompute()
